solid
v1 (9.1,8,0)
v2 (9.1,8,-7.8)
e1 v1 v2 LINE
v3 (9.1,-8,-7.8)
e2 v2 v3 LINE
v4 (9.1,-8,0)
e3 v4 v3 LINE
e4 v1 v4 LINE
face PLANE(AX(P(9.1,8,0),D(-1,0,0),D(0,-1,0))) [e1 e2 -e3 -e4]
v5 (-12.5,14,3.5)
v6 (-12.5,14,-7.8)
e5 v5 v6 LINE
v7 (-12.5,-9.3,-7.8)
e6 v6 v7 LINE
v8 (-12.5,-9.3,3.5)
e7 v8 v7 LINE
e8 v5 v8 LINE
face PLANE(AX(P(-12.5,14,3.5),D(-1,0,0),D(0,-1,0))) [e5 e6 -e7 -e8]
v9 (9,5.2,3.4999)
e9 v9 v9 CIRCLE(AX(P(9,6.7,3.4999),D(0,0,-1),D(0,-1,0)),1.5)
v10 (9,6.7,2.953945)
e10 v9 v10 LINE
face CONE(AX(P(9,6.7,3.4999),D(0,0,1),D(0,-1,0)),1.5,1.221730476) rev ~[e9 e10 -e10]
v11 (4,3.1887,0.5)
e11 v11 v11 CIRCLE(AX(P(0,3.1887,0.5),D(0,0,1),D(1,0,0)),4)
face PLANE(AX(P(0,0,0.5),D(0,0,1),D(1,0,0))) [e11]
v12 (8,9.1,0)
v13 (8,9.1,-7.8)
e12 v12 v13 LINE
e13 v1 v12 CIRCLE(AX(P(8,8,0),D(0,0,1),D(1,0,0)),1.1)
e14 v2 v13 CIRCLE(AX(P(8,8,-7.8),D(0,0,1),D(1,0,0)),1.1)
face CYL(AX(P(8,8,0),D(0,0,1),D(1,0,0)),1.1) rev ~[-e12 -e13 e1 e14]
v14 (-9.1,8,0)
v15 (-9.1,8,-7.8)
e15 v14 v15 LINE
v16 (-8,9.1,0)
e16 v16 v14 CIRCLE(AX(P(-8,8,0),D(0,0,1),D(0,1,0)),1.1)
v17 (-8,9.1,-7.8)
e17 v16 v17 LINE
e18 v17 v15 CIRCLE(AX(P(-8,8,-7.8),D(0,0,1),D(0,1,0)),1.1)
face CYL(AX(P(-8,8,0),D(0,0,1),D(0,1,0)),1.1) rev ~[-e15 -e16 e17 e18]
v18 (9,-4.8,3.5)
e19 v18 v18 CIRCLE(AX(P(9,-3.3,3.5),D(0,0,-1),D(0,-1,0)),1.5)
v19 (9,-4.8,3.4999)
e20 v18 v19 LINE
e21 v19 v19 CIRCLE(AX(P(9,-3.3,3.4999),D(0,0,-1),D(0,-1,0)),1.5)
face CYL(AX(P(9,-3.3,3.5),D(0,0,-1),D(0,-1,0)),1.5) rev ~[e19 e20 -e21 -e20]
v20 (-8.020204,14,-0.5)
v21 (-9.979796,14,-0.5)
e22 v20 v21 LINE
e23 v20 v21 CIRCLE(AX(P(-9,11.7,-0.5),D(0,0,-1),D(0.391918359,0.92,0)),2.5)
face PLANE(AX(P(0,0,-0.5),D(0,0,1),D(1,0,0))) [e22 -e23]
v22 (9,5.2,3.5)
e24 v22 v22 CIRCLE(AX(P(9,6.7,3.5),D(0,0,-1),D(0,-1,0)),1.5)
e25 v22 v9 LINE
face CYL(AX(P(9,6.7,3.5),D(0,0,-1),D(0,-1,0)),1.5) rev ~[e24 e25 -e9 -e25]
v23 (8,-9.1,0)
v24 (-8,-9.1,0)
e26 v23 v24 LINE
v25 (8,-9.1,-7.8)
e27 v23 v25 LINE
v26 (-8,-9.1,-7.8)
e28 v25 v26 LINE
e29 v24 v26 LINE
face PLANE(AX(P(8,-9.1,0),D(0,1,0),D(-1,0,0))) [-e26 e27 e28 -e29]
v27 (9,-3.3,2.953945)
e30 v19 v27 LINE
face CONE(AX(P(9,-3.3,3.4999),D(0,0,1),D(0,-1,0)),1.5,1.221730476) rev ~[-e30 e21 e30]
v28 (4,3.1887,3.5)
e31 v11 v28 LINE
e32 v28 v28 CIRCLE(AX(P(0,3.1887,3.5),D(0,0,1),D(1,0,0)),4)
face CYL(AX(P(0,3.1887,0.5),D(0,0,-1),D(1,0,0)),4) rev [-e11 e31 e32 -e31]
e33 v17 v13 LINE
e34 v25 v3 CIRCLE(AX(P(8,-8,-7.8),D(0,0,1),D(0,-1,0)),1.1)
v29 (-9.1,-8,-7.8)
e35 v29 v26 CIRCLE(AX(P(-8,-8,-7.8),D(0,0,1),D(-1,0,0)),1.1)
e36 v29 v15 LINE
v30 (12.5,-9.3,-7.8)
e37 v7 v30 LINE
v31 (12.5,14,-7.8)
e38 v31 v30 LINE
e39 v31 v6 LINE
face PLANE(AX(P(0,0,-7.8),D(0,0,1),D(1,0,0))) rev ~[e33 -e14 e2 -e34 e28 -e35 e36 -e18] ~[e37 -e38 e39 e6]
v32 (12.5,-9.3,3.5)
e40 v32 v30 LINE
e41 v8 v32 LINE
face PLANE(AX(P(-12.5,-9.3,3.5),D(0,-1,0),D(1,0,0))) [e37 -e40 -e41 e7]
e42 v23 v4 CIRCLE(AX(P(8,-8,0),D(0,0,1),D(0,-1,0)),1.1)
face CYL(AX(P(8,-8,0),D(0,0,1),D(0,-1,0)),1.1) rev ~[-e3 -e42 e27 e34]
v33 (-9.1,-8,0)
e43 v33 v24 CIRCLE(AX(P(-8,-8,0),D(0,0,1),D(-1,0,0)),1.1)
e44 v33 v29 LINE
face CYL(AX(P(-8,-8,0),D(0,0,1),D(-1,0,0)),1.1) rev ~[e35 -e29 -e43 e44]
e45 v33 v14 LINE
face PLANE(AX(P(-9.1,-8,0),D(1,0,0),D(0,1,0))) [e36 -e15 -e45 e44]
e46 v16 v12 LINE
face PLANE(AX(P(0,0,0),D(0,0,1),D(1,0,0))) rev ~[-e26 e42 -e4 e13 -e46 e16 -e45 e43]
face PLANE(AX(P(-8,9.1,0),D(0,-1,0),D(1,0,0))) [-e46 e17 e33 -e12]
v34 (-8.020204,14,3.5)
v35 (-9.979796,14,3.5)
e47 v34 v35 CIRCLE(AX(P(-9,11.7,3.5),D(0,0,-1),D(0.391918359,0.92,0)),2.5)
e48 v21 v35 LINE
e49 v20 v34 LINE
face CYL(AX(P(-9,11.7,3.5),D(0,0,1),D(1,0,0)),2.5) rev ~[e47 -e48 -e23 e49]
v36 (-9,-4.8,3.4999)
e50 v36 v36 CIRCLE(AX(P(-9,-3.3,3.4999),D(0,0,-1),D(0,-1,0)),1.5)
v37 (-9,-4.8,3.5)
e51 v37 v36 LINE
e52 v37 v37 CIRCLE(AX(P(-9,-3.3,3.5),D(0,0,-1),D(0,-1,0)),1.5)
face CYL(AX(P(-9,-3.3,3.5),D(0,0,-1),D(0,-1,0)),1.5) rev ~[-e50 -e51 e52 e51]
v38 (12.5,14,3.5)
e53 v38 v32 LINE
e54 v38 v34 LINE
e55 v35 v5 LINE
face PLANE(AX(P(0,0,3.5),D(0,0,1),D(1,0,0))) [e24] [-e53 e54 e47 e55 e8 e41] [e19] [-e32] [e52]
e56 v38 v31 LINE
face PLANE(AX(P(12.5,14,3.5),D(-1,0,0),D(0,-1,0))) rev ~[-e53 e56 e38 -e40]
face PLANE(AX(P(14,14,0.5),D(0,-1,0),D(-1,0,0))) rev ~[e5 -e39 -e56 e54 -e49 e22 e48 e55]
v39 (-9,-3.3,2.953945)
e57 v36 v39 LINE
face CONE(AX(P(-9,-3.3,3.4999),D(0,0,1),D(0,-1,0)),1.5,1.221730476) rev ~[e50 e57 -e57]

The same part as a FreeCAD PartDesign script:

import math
import FreeCAD as App
import Part
import Sketcher

V = App.Vector

doc = App.newDocument("Part")
params = doc.addObject("Spreadsheet::Sheet", "Params")
for row, (alias, value) in enumerate([
    ("sketch1_width", "28 mm"),
    ("sketch1_radius", "1.1 mm"),
    ("sketch1_width2", "16 mm"),
    ("pad1_length", "7.8 mm"),
    ("sketch2_width", "28 mm"),
    ("pad2_length", "0.5 mm"),
    ("sketch3_diameter", "8 mm"),
    ("sketch3_width", "28 mm"),
    ("pad3_length", "3 mm"),
    ("sketch4_width", "1.5 mm"),
    ("sketch4_width2", "28 mm"),
    ("sketch4_height", "23.3 mm"),
    ("sketch5_diameter", "3 mm"),
    ("hole_diameter", "3 mm"),
    ("hole_depth", "0.0001 mm"),
    ("sketch6_diameter", "5 mm"),
    ("pocket2_length", "4 mm"),
], start=1):
    params.set(f"A{row}", alias)
    params.set(f"B{row}", "=" + value)
    params.setAlias(f"B{row}", alias)

body = doc.addObject("PartDesign::Body", "Body")

# Sketch on XY plane
sketch1 = body.newObject("Sketcher::SketchObject", "Sketch")
sketch1.AttachmentSupport = (doc.getObject("XY_Plane"), [""])
sketch1.MapMode = "FlatFace"
sketch1.addGeometry([
    Part.LineSegment(V(14, -14, 0), V(14, 14, 0)),  # 0
    Part.LineSegment(V(14, 14, 0), V(-14, 14, 0)),  # 1
    Part.LineSegment(V(-14, 14, 0), V(-14, -14, 0)),  # 2
    Part.LineSegment(V(-14, -14, 0), V(14, -14, 0)),  # 3
    Part.ArcOfCircle(Part.Circle(V(-8, 8, 0), V(0, 0, 1), 1.1), math.radians(90), math.radians(180)),  # 4
    Part.LineSegment(V(-8, 9.1, 0), V(8, 9.1, 0)),  # 5
    Part.ArcOfCircle(Part.Circle(V(8, 8, 0), V(0, 0, 1), 1.1), math.radians(0), math.radians(90)),  # 6
    Part.LineSegment(V(9.1, 8, 0), V(9.1, -8, 0)),  # 7
    Part.ArcOfCircle(Part.Circle(V(8, -8, 0), V(0, 0, 1), 1.1), math.radians(-90), math.radians(0)),  # 8
    Part.LineSegment(V(8, -9.1, 0), V(-8, -9.1, 0)),  # 9
    Part.ArcOfCircle(Part.Circle(V(-8, -8, 0), V(0, 0, 1), 1.1), math.radians(180), math.radians(270)),  # 10
    Part.LineSegment(V(-9.1, -8, 0), V(-9.1, 8, 0)),  # 11
], False)
sketch1.addConstraint([
    Sketcher.Constraint("Coincident", 0, 2, 1, 1),
    Sketcher.Constraint("Coincident", 1, 2, 2, 1),
    Sketcher.Constraint("Coincident", 2, 2, 3, 1),
    Sketcher.Constraint("Coincident", 3, 2, 0, 1),
    Sketcher.Constraint("Tangent", 4, 1, 5, 1),
    Sketcher.Constraint("Tangent", 5, 2, 6, 2),
    Sketcher.Constraint("Tangent", 6, 1, 7, 1),
    Sketcher.Constraint("Tangent", 7, 2, 8, 2),
    Sketcher.Constraint("Tangent", 8, 1, 9, 1),
    Sketcher.Constraint("Tangent", 9, 2, 10, 2),
    Sketcher.Constraint("Tangent", 10, 1, 11, 1),
    Sketcher.Constraint("Tangent", 11, 2, 4, 2),
    Sketcher.Constraint("Vertical", 0),
    Sketcher.Constraint("Horizontal", 1),
    Sketcher.Constraint("Vertical", 2),
    Sketcher.Constraint("Horizontal", 3),
    Sketcher.Constraint("Horizontal", 5),
    Sketcher.Constraint("Vertical", 7),
    Sketcher.Constraint("Horizontal", 9),
    Sketcher.Constraint("Vertical", 11),
    Sketcher.Constraint("Equal", 4, 6),
    Sketcher.Constraint("Equal", 6, 8),
    Sketcher.Constraint("Equal", 8, 10),
    Sketcher.Constraint("Symmetric", 4, 3, 8, 3, -1, 1),
    Sketcher.Constraint("Symmetric", 0, 2, 2, 2, -1, 1),
    Sketcher.Constraint("Equal", 3, 0),
    Sketcher.Constraint("Equal", 9, 7),
    Sketcher.Constraint("DistanceX", 1, 2, 1, 1, 28.0),
    Sketcher.Constraint("Radius", 4, 1.1),
    Sketcher.Constraint("DistanceX", 5, 1, 5, 2, 16.0),
])
sketch1.setExpression("Constraints[27]", "Params.sketch1_width")
sketch1.setExpression("Constraints[28]", "Params.sketch1_radius")
sketch1.setExpression("Constraints[29]", "Params.sketch1_width2")
pad1 = body.newObject("PartDesign::Pad", "Pad")
pad1.Profile = sketch1
pad1.setExpression("Length", "Params.pad1_length")
pad1.Reversed = True

# Sketch on XY plane
sketch2 = body.newObject("Sketcher::SketchObject", "Sketch001")
sketch2.AttachmentSupport = (doc.getObject("XY_Plane"), [""])
sketch2.MapMode = "FlatFace"
sketch2.addGeometry([
    Part.LineSegment(V(14, 14, 0), V(-14, 14, 0)),
    Part.LineSegment(V(-14, 14, 0), V(-14, -14, 0)),
    Part.LineSegment(V(-14, -14, 0), V(14, -14, 0)),
    Part.LineSegment(V(14, -14, 0), V(14, 14, 0)),
], False)
sketch2.addConstraint([
    Sketcher.Constraint("Coincident", 0, 2, 1, 1),
    Sketcher.Constraint("Coincident", 1, 2, 2, 1),
    Sketcher.Constraint("Coincident", 2, 2, 3, 1),
    Sketcher.Constraint("Coincident", 3, 2, 0, 1),
    Sketcher.Constraint("Horizontal", 0),
    Sketcher.Constraint("Vertical", 1),
    Sketcher.Constraint("Horizontal", 2),
    Sketcher.Constraint("Vertical", 3),
    Sketcher.Constraint("Symmetric", 0, 2, 2, 2, -1, 1),
    Sketcher.Constraint("Equal", 2, 1),
    Sketcher.Constraint("DistanceX", 0, 2, 0, 1, 28.0),
])
sketch2.setExpression("Constraints[10]", "Params.sketch2_width")
pad2 = body.newObject("PartDesign::Pad", "Pad001")
pad2.Profile = sketch2
pad2.setExpression("Length", "Params.pad2_length")

# Sketch on XY plane
sketch3 = body.newObject("Sketcher::SketchObject", "Sketch002")
sketch3.AttachmentSupport = (doc.getObject("XY_Plane"), [""])
sketch3.MapMode = "FlatFace"
sketch3.AttachmentOffset = App.Placement(V(0, 0, 0.5), App.Rotation())
sketch3.addGeometry([
    Part.LineSegment(V(-14, 14, 0), V(-14, -14, 0)),  # 0
    Part.LineSegment(V(-14, -14, 0), V(14, -14, 0)),  # 1
    Part.LineSegment(V(14, -14, 0), V(14, 14, 0)),  # 2
    Part.LineSegment(V(14, 14, 0), V(-14, 14, 0)),  # 3
    Part.Circle(V(0, 3.2, 0), V(0, 0, 1), 4),  # 4
], False)
sketch3.addConstraint([
    Sketcher.Constraint("Coincident", 0, 2, 1, 1),
    Sketcher.Constraint("Coincident", 1, 2, 2, 1),
    Sketcher.Constraint("Coincident", 2, 2, 3, 1),
    Sketcher.Constraint("Coincident", 3, 2, 0, 1),
    Sketcher.Constraint("Vertical", 0),
    Sketcher.Constraint("Horizontal", 1),
    Sketcher.Constraint("Vertical", 2),
    Sketcher.Constraint("Horizontal", 3),
    Sketcher.Constraint("Symmetric", 0, 2, 2, 2, -1, 1),
    Sketcher.Constraint("PointOnObject", 4, 3, -2),
    Sketcher.Constraint("Equal", 3, 0),
    Sketcher.Constraint("Diameter", 4, 8.0),
    Sketcher.Constraint("DistanceX", 1, 1, 1, 2, 28.0),
    Sketcher.Constraint("DistanceY", -1, 1, 4, 3, 3.1887),
])
sketch3.setExpression("Constraints[11]", "Params.sketch3_diameter")
sketch3.setExpression("Constraints[12]", "Params.sketch3_width")
pad3 = body.newObject("PartDesign::Pad", "Pad002")
pad3.Profile = sketch3
pad3.setExpression("Length", "Params.pad3_length")

# Sketch on XY plane
sketch4 = body.newObject("Sketcher::SketchObject", "Sketch003")
sketch4.AttachmentSupport = (doc.getObject("XY_Plane"), [""])
sketch4.MapMode = "FlatFace"
sketch4.AttachmentOffset = App.Placement(V(0, 0, 3.5), App.Rotation())
sketch4.addGeometry([
    Part.LineSegment(V(-14, -14, 0), V(14, -14, 0)),  # 0
    Part.LineSegment(V(14, -14, 0), V(14, 14, 0)),  # 1
    Part.LineSegment(V(14, 14, 0), V(12.5, 14, 0)),  # 2
    Part.LineSegment(V(12.5, 14, 0), V(12.5, -9.3, 0)),  # 3
    Part.LineSegment(V(12.5, -9.3, 0), V(-12.5, -9.3, 0)),  # 4
    Part.LineSegment(V(-12.5, -9.3, 0), V(-12.5, 14, 0)),  # 5
    Part.LineSegment(V(-12.5, 14, 0), V(-14, 14, 0)),  # 6
    Part.LineSegment(V(-14, 14, 0), V(-14, -14, 0)),  # 7
], False)
sketch4.addConstraint([
    Sketcher.Constraint("Coincident", 0, 2, 1, 1),
    Sketcher.Constraint("Coincident", 1, 2, 2, 1),
    Sketcher.Constraint("Coincident", 2, 2, 3, 1),
    Sketcher.Constraint("Coincident", 3, 2, 4, 1),
    Sketcher.Constraint("Coincident", 4, 2, 5, 1),
    Sketcher.Constraint("Coincident", 5, 2, 6, 1),
    Sketcher.Constraint("Coincident", 6, 2, 7, 1),
    Sketcher.Constraint("Coincident", 7, 2, 0, 1),
    Sketcher.Constraint("Horizontal", 0),
    Sketcher.Constraint("Vertical", 1),
    Sketcher.Constraint("Horizontal", 2),
    Sketcher.Constraint("Vertical", 3),
    Sketcher.Constraint("Horizontal", 4),
    Sketcher.Constraint("Vertical", 5),
    Sketcher.Constraint("Horizontal", 6),
    Sketcher.Constraint("Vertical", 7),
    Sketcher.Constraint("Symmetric", 0, 2, 6, 2, -1, 1),
    Sketcher.Constraint("Symmetric", 2, 2, 5, 2, -2),
    Sketcher.Constraint("Equal", 0, 1),
    Sketcher.Constraint("DistanceX", 2, 2, 2, 1, 1.5),
    Sketcher.Constraint("DistanceX", 0, 1, 0, 2, 28.0),
    Sketcher.Constraint("DistanceY", 3, 2, 3, 1, 23.3),
])
sketch4.setExpression("Constraints[19]", "Params.sketch4_width")
sketch4.setExpression("Constraints[20]", "Params.sketch4_width2")
sketch4.setExpression("Constraints[21]", "Params.sketch4_height")
pocket1 = body.newObject("PartDesign::Pocket", "Pocket")
pocket1.Profile = sketch4
pocket1.Type = "ThroughAll"

# Sketch on XY plane
sketch5 = body.newObject("Sketcher::SketchObject", "Sketch004")
sketch5.AttachmentSupport = (doc.getObject("XY_Plane"), [""])
sketch5.MapMode = "FlatFace"
sketch5.AttachmentOffset = App.Placement(V(0, 0, 3.5), App.Rotation())
sketch5.addGeometry([
    Part.Circle(V(9, -3.3, 0), V(0, 0, 1), 1.5),
    Part.Circle(V(9, 6.7, 0), V(0, 0, 1), 1.5),
    Part.Circle(V(-9, -3.3, 0), V(0, 0, 1), 1.5),
    Part.Circle(V(-9, 11.7, 0), V(0, 0, 1), 1.5),
], False)
sketch5.addConstraint([
    Sketcher.Constraint("Equal", 0, 1),
    Sketcher.Constraint("Equal", 1, 2),
    Sketcher.Constraint("Equal", 2, 3),
    Sketcher.Constraint("Symmetric", 0, 3, 2, 3, -2),
    Sketcher.Constraint("Vertical", 0, 3, 1, 3),
    Sketcher.Constraint("Vertical", 2, 3, 3, 3),
    Sketcher.Constraint("Diameter", 0, 3.0),
    Sketcher.Constraint("DistanceX", -1, 1, 0, 3, 9.0),
    Sketcher.Constraint("DistanceY", 0, 3, 1, 3, 10.0),
    Sketcher.Constraint("DistanceY", 2, 3, 3, 3, 15.0),
    Sketcher.Constraint("DistanceY", 0, 3, -1, 1, 3.3),
])
sketch5.setExpression("Constraints[6]", "Params.sketch5_diameter")
doc.recompute()
hole = body.newObject("PartDesign::Hole", "Hole")
hole.Profile = sketch5
hole.ThreadType = "None"
hole.setExpression("Diameter", "Params.hole_diameter")
hole.DepthType = "Dimension"
hole.setExpression("Depth", "Params.hole_depth")
hole.DrillPoint = "Angled"
hole.DrillPointAngle = 140

# Sketch on XY plane
sketch6 = body.newObject("Sketcher::SketchObject", "Sketch005")
sketch6.AttachmentSupport = (doc.getObject("XY_Plane"), [""])
sketch6.MapMode = "FlatFace"
sketch6.AttachmentOffset = App.Placement(V(0, 0, 3.5), App.Rotation())
sketch6.addGeometry(Part.Circle(V(-9, 11.7, 0), V(0, 0, 1), 2.5), False)
sketch6.addConstraint([
    Sketcher.Constraint("Diameter", 0, 5.0),
    Sketcher.Constraint("DistanceX", 0, 3, -1, 1, 9.0),
    Sketcher.Constraint("DistanceY", -1, 1, 0, 3, 11.7),
])
sketch6.setExpression("Constraints[0]", "Params.sketch6_diameter")
pocket2 = body.newObject("PartDesign::Pocket", "Pocket001")
pocket2.Profile = sketch6
pocket2.setExpression("Length", "Params.pocket2_length")

doc.recompute()
